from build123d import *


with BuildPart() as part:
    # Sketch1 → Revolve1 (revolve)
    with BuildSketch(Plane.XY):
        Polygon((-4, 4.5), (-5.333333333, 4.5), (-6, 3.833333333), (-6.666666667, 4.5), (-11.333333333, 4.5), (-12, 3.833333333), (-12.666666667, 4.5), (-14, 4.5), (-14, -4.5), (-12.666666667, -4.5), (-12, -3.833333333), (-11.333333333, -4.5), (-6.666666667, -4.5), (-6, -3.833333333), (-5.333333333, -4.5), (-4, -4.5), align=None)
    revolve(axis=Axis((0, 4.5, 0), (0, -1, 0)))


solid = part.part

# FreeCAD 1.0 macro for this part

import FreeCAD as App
import Part
import Sketcher
from FreeCAD import Vector

doc = App.newDocument("Part")
body = doc.addObject("PartDesign::Body", "Body")

sketch1 = doc.addObject("Sketcher::SketchObject", "Sketch")
body.addObject(sketch1)
sketch1.AttachmentSupport = (doc.XY_Plane, [""])
sketch1.MapMode = "FlatFace"
sketch1.addGeometry([
    Part.LineSegment(Vector(-4, 4.5, 0), Vector(-5.3, 4.5, 0)),
    Part.LineSegment(Vector(-5.3, 4.5, 0), Vector(-6, 3.8, 0)),
    Part.LineSegment(Vector(-6, 3.8, 0), Vector(-6.7, 4.5, 0)),
    Part.LineSegment(Vector(-6.7, 4.5, 0), Vector(-11.3, 4.5, 0)),
    Part.LineSegment(Vector(-11.3, 4.5, 0), Vector(-12, 3.8, 0)),
    Part.LineSegment(Vector(-12, 3.8, 0), Vector(-12.7, 4.5, 0)),
    Part.LineSegment(Vector(-12.7, 4.5, 0), Vector(-14, 4.5, 0)),
    Part.LineSegment(Vector(-14, 4.5, 0), Vector(-14, -4.5, 0)),
    Part.LineSegment(Vector(-14, -4.5, 0), Vector(-12.7, -4.5, 0)),
    Part.LineSegment(Vector(-12.7, -4.5, 0), Vector(-12, -3.8, 0)),
    Part.LineSegment(Vector(-12, -3.8, 0), Vector(-11.3, -4.5, 0)),
    Part.LineSegment(Vector(-11.3, -4.5, 0), Vector(-6.7, -4.5, 0)),
    Part.LineSegment(Vector(-6.7, -4.5, 0), Vector(-6, -3.8, 0)),
    Part.LineSegment(Vector(-6, -3.8, 0), Vector(-5.3, -4.5, 0)),
    Part.LineSegment(Vector(-5.3, -4.5, 0), Vector(-4, -4.5, 0)),
    Part.LineSegment(Vector(-4, -4.5, 0), Vector(-4, 4.5, 0)),
], False)
sketch1.addConstraint([
    Sketcher.Constraint("Coincident", 0, 2, 1, 1),
    Sketcher.Constraint("Coincident", 1, 2, 2, 1),
    Sketcher.Constraint("Coincident", 2, 2, 3, 1),
    Sketcher.Constraint("Coincident", 3, 2, 4, 1),
    Sketcher.Constraint("Coincident", 4, 2, 5, 1),
    Sketcher.Constraint("Coincident", 5, 2, 6, 1),
    Sketcher.Constraint("Coincident", 6, 2, 7, 1),
    Sketcher.Constraint("Coincident", 7, 2, 8, 1),
    Sketcher.Constraint("Coincident", 8, 2, 9, 1),
    Sketcher.Constraint("Coincident", 9, 2, 10, 1),
    Sketcher.Constraint("Coincident", 10, 2, 11, 1),
    Sketcher.Constraint("Coincident", 11, 2, 12, 1),
    Sketcher.Constraint("Coincident", 12, 2, 13, 1),
    Sketcher.Constraint("Coincident", 13, 2, 14, 1),
    Sketcher.Constraint("Coincident", 14, 2, 15, 1),
    Sketcher.Constraint("Coincident", 15, 2, 0, 1),
    Sketcher.Constraint("Horizontal", 0),
    Sketcher.Constraint("Horizontal", 3),
    Sketcher.Constraint("Horizontal", 6),
    Sketcher.Constraint("Vertical", 7),
    Sketcher.Constraint("Horizontal", 8),
    Sketcher.Constraint("Horizontal", 11),
    Sketcher.Constraint("Horizontal", 14),
    Sketcher.Constraint("Vertical", 15),
    Sketcher.Constraint("Symmetric", 5, 2, 8, 2, -1),
    Sketcher.Constraint("Symmetric", 4, 2, 9, 2, -1),
    Sketcher.Constraint("Symmetric", 3, 2, 10, 2, -1),
    Sketcher.Constraint("Symmetric", 1, 2, 12, 2, -1),
    Sketcher.Constraint("Symmetric", 0, 2, 13, 2, -1),
    Sketcher.Constraint("Perpendicular", 1, 2),
    Sketcher.Constraint("Perpendicular", 2, 4),
    Sketcher.Constraint("Perpendicular", 4, 5),
    Sketcher.Constraint("Perpendicular", 5, 9),
    Sketcher.Constraint("Perpendicular", 10, 12),
    Sketcher.Constraint("Horizontal", 0, 2, 2, 2),
    Sketcher.Constraint("Horizontal", 1, 2, 4, 2),
    Sketcher.Constraint("Horizontal", 3, 2, 5, 2),
    Sketcher.Constraint("Equal", 0, 6),
    Sketcher.Constraint("DistanceY", 7, 2, 7, 1, 9.0),
    Sketcher.Constraint("DistanceX", 1, 2, -1, 1, 6.0),
    Sketcher.Constraint("DistanceX", 4, 2, -1, 1, 12.0),
    Sketcher.Constraint("DistanceX", 6, 2, -1, 1, 14.0),
    Sketcher.Constraint("Distance", 1, 0.942809),
])
revolution = doc.addObject("PartDesign::Revolution", "Revolution")
body.addObject(revolution)
revolution.Profile = sketch1
revolution.ReferenceAxis = (sketch1, ["V_Axis"])
revolution.Angle = 360

doc.recompute()
